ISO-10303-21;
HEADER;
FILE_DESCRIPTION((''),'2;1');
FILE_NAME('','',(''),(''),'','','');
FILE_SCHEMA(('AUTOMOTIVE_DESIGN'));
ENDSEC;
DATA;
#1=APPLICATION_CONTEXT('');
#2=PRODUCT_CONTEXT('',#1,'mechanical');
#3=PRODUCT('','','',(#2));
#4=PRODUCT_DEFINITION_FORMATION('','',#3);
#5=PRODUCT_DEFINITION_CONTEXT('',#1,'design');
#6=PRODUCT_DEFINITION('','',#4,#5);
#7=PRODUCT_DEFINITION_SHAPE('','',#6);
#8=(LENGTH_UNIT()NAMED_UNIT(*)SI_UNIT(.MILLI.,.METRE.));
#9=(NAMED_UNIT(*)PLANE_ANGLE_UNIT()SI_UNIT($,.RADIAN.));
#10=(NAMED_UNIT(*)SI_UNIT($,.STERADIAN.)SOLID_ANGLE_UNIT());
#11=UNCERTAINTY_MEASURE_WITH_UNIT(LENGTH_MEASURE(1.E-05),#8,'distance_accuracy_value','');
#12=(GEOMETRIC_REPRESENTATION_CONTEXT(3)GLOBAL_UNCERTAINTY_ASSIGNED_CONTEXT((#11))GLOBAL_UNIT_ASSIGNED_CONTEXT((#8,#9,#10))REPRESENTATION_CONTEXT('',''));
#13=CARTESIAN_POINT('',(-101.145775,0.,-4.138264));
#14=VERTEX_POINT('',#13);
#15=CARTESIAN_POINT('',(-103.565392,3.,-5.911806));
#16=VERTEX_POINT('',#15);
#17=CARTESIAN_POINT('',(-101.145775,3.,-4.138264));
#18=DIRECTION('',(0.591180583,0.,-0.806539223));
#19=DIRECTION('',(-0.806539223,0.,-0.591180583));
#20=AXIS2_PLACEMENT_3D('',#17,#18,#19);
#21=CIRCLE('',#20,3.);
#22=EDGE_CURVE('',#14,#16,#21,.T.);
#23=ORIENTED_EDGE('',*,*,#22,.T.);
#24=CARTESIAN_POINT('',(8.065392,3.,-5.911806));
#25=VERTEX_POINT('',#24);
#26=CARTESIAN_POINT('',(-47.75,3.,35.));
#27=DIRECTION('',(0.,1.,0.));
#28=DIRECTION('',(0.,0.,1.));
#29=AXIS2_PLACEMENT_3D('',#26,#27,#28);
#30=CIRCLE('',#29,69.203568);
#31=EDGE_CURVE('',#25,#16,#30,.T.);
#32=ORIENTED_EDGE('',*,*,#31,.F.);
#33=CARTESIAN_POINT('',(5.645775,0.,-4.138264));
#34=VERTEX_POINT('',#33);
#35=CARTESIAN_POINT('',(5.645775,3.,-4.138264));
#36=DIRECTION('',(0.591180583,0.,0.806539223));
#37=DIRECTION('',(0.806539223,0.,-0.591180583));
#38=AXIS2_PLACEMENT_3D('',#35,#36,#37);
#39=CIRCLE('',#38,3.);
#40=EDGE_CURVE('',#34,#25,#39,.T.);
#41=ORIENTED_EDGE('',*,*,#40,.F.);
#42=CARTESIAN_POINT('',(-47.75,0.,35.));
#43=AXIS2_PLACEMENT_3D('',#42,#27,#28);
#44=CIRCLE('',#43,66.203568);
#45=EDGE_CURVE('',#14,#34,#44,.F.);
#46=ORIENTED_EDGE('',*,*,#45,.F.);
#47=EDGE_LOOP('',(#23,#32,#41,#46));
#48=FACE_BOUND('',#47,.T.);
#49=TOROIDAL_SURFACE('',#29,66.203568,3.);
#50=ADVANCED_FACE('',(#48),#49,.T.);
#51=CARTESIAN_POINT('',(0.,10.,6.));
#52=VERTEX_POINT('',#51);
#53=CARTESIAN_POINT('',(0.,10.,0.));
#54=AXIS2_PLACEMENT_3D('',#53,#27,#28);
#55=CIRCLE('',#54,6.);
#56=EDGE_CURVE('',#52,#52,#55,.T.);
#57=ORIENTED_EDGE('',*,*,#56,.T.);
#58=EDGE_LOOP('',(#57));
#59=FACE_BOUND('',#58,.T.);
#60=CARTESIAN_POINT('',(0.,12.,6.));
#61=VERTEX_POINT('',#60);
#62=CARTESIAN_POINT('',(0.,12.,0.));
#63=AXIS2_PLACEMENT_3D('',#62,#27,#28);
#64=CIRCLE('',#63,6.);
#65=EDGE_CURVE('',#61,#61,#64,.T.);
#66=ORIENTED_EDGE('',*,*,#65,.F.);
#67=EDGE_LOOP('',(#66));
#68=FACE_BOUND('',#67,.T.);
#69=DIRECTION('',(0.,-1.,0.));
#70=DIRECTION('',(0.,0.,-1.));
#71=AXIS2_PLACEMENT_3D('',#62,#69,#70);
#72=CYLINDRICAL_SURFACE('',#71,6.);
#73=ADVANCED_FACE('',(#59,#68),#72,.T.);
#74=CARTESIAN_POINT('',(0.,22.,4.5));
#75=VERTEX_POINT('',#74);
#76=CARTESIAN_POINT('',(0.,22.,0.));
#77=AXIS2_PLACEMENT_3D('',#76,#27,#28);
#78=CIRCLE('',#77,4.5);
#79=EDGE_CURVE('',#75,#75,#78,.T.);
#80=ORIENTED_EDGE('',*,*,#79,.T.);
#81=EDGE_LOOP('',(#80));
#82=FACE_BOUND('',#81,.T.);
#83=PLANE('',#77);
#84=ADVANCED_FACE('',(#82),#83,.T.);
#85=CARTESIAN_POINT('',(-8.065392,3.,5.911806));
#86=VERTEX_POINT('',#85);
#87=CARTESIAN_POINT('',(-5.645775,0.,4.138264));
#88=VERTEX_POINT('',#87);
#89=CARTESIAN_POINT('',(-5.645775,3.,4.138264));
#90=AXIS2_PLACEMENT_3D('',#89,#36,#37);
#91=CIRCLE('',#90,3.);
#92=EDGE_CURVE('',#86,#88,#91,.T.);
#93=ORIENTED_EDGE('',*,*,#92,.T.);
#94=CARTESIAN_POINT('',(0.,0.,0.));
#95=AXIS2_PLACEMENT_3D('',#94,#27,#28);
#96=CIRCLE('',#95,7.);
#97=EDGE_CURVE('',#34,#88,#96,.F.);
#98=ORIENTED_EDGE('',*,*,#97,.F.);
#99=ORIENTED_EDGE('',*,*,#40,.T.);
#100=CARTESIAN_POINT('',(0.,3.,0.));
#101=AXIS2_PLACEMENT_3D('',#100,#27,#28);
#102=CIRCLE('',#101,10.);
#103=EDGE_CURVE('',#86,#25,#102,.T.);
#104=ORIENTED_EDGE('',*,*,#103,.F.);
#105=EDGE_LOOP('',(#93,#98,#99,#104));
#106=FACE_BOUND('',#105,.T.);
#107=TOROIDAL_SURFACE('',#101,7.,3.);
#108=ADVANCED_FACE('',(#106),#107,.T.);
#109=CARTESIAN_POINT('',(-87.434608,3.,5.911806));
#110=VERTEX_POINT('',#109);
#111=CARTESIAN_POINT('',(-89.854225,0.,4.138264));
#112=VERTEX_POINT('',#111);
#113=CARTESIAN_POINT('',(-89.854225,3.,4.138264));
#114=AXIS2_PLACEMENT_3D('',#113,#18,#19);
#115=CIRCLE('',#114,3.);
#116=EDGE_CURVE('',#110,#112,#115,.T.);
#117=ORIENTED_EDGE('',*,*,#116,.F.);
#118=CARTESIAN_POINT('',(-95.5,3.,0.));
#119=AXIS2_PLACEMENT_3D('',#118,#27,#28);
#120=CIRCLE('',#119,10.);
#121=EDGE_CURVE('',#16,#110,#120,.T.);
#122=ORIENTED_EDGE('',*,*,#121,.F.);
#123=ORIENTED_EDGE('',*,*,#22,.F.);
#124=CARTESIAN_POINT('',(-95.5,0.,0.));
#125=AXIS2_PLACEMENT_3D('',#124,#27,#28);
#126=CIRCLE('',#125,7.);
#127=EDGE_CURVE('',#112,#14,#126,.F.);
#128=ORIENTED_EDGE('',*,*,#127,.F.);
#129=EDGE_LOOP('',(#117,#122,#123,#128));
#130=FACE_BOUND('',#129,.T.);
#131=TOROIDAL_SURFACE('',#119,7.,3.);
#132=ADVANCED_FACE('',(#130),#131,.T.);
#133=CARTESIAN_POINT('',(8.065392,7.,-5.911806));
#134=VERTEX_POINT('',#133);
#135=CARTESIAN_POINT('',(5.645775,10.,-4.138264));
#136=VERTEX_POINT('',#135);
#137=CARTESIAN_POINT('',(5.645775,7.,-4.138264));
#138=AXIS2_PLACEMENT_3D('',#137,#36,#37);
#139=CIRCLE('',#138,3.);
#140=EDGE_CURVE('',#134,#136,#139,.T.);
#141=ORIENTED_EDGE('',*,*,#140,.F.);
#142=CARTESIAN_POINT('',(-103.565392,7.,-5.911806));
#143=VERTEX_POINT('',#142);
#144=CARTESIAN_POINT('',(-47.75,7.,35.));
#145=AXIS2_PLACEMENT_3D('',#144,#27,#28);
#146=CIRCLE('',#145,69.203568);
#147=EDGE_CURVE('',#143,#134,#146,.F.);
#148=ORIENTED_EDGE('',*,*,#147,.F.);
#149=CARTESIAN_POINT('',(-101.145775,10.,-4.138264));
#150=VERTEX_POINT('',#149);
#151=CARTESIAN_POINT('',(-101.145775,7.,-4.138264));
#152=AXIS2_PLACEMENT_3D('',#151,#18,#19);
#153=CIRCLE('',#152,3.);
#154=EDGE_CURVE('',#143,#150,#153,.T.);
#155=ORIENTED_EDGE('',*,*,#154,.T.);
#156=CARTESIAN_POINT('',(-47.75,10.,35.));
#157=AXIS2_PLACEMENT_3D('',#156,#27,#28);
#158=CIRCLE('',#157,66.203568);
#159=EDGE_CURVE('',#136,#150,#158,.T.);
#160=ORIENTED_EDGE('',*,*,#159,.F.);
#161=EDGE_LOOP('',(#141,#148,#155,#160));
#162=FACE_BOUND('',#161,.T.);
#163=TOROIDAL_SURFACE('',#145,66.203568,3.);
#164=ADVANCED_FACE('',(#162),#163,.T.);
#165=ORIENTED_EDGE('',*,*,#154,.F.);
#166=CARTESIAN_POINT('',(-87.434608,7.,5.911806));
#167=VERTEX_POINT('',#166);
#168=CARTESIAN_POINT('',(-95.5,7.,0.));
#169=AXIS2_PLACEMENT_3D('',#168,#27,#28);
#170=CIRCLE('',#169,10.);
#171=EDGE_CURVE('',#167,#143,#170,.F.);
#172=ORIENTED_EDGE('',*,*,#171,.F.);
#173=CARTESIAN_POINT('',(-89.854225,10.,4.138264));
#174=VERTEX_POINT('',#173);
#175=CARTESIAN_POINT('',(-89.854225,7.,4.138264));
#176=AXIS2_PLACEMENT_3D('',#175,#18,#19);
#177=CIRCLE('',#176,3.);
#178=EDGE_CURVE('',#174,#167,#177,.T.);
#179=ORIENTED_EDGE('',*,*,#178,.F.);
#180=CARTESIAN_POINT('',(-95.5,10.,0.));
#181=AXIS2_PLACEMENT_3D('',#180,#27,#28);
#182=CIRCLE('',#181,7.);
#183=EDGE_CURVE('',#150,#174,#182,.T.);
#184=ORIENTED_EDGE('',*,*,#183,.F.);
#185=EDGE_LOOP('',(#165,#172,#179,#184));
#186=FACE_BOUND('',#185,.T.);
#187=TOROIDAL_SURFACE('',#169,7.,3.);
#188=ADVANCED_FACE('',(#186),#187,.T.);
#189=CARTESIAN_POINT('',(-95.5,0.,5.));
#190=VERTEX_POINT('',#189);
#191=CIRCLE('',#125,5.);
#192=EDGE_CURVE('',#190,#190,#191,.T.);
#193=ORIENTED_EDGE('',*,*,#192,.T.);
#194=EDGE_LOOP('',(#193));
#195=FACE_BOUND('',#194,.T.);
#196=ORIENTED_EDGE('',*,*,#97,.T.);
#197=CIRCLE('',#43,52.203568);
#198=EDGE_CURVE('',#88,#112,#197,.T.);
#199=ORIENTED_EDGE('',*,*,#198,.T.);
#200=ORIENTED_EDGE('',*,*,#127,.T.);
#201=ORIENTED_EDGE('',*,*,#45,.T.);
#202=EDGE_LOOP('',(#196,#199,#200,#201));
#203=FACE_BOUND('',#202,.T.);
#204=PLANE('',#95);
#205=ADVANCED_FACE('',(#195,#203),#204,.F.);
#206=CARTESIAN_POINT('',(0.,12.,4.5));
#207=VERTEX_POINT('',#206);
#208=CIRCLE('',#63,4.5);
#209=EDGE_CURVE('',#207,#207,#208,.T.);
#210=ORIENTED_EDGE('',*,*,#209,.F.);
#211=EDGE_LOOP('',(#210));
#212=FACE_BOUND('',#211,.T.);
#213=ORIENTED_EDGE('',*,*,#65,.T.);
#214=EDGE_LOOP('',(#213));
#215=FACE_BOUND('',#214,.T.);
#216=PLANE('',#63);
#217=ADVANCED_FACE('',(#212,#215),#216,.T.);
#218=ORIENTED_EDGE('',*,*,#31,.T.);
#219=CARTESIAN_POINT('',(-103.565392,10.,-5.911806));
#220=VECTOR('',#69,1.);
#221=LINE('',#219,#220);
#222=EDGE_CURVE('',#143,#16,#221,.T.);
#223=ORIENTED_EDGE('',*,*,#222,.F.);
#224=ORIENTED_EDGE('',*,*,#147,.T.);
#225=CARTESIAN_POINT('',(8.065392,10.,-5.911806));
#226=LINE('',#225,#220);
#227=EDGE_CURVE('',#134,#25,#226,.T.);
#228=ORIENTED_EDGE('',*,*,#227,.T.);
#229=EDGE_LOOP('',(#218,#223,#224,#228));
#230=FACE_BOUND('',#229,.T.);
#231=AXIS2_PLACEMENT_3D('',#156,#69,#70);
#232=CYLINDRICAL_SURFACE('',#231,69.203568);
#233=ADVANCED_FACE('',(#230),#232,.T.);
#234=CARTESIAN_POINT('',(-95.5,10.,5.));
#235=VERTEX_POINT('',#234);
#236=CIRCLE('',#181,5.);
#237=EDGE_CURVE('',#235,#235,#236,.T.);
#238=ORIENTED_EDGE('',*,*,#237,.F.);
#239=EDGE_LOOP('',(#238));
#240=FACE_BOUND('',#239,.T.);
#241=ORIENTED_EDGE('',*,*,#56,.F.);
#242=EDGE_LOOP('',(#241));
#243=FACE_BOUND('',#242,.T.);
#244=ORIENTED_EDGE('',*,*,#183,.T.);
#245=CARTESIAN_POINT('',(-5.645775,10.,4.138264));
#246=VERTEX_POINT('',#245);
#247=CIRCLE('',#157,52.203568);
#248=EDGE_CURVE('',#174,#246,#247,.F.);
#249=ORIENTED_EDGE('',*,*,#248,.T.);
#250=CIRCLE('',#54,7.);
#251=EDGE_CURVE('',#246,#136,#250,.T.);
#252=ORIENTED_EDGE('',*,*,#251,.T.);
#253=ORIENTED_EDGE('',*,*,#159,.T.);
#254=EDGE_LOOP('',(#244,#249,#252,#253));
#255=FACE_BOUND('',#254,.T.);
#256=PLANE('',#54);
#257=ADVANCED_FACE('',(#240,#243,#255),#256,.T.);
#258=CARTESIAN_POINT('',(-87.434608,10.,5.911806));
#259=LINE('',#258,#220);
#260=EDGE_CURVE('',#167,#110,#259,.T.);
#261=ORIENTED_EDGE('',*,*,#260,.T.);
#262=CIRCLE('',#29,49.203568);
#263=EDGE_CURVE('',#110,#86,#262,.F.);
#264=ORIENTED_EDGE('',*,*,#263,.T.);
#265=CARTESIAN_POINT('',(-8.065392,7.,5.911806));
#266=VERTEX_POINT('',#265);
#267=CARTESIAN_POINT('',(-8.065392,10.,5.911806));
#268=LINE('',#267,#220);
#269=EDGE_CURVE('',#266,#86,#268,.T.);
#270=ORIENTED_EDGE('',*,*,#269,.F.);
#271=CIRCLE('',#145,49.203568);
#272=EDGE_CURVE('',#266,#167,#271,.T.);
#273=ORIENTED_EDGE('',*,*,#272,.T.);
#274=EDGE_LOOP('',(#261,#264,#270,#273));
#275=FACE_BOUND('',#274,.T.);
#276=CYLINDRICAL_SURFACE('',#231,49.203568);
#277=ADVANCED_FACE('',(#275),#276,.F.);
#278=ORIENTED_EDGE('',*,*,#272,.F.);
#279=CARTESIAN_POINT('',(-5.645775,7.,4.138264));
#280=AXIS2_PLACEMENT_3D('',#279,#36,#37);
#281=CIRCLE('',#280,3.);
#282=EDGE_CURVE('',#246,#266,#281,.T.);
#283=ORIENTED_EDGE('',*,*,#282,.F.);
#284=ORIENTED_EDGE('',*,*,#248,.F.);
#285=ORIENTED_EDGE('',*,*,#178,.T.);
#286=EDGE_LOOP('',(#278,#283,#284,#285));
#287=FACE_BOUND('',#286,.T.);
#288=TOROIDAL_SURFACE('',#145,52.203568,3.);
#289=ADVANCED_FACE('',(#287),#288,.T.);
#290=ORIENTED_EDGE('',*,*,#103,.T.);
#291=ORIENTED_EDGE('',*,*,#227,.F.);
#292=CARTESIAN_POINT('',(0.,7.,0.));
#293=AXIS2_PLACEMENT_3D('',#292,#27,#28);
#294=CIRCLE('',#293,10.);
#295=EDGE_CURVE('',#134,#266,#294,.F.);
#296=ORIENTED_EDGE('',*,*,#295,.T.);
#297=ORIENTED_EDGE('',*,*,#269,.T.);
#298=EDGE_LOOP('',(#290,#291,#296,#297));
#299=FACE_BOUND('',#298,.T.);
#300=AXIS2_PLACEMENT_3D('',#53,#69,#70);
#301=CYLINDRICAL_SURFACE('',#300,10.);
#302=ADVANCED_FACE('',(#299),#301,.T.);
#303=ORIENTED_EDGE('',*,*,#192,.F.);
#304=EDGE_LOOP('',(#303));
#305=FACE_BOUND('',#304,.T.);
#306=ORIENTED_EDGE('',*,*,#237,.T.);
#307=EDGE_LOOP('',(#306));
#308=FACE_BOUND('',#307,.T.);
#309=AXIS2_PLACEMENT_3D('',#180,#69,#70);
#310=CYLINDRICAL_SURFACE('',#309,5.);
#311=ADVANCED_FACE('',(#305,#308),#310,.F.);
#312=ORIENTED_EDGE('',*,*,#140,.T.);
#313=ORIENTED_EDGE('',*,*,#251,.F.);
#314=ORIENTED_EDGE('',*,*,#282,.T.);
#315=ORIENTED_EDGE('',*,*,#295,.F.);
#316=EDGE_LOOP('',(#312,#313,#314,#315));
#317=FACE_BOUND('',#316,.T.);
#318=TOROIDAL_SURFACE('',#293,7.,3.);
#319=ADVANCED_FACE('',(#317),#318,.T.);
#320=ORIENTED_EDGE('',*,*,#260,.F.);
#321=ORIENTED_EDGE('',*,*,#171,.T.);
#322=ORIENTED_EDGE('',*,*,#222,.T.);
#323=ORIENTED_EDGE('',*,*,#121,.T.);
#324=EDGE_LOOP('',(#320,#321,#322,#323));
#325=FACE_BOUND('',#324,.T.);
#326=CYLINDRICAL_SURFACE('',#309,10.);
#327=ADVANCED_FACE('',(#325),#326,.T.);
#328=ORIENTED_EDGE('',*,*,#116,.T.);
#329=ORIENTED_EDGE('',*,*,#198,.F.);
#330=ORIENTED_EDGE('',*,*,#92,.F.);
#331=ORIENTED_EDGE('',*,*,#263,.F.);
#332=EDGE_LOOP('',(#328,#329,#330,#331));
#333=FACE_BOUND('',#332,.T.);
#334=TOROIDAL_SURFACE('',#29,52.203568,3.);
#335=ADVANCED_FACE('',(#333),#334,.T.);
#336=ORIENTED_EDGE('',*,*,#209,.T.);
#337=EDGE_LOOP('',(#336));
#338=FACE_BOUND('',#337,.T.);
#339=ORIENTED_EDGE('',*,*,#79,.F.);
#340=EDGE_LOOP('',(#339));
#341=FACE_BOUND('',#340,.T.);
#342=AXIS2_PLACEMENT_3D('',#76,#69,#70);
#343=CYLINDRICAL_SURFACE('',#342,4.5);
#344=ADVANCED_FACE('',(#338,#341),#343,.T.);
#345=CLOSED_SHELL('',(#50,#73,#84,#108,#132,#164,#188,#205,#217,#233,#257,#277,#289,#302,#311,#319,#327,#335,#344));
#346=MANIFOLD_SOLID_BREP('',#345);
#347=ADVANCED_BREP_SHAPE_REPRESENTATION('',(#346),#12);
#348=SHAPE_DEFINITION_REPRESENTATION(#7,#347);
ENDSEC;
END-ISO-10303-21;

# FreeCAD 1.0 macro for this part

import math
import FreeCAD as App
import Part
import Sketcher

V = App.Vector


def edges_at(feature, points):
    """Names of the edges that pass closest to the given points."""
    edges = feature.Shape.Edges
    near = lambda p: min(range(len(edges)), key=lambda i: edges[i].distToShape(Part.Vertex(*p))[0])
    return sorted({f"Edge{near(p) + 1}" for p in points})

doc = App.newDocument("Part")
body = doc.addObject("PartDesign::Body", "Body")

# Sketch on XZ plane
sketch1 = body.newObject("Sketcher::SketchObject", "Sketch")
sketch1.AttachmentSupport = (doc.getObject("XZ_Plane"), [""])
sketch1.MapMode = "FlatFace"
sketch1.addGeometry([
    Part.ArcOfCircle(Part.Circle(V(0, 0, 0), V(0, 0, 1), 10), math.radians(-36), math.radians(144)),  # 0
    Part.ArcOfCircle(Part.Circle(V(-48, 35, 0), V(0, 0, 1), 69), math.radians(-144), math.radians(-36)),  # 1
    Part.ArcOfCircle(Part.Circle(V(-96, 0, 0), V(0, 0, 1), 10), math.radians(36), math.radians(216)),  # 2
    Part.ArcOfCircle(Part.Circle(V(-48, 35, 0), V(0, 0, 1), 49), math.radians(-144), math.radians(-36)),  # 3
    Part.Circle(V(-96, 0, 0), V(0, 0, 1), 5),  # 4
    Part.Circle(V(0, 0, 0), V(0, 0, 1), 5),  # 5
], False)
sketch1.addConstraint([
    Sketcher.Constraint("Tangent", 0, 1, 1, 2),
    Sketcher.Constraint("Tangent", 1, 1, 2, 2),
    Sketcher.Constraint("Tangent", 2, 1, 3, 1),
    Sketcher.Constraint("Tangent", 3, 2, 0, 2),
    Sketcher.Constraint("Coincident", 0, 3, -1, 1),
    Sketcher.Constraint("Coincident", 5, 3, -1, 1),
    Sketcher.Constraint("Coincident", 3, 3, 1, 3),
    Sketcher.Constraint("Coincident", 4, 3, 2, 3),
    Sketcher.Constraint("Equal", 4, 5),
    Sketcher.Constraint("PointOnObject", 2, 3, -1),
    Sketcher.Constraint("Diameter", 4, 10.0),
    Sketcher.Constraint("Radius", 0, 10.0),
    Sketcher.Constraint("DistanceY", -1, 1, 1, 3, 35.0),
    Sketcher.Constraint("DistanceX", 2, 3, -1, 1, 95.5),
])
pad1 = body.newObject("PartDesign::Pad", "Pad")
pad1.Profile = sketch1
pad1.Length = 10
pad1.Reversed = True
doc.recompute()

fillet = body.newObject("PartDesign::Fillet", "Fillet")
fillet.Base = (pad1, edges_at(pad1, [
    (5.912, 10, 8.065),
    (-47.75, 10, -34.204),
    (-101.412, 10, 8.065),
    (-47.75, 10, -14.204),
    (-47.75, 0, -14.204),
    (-101.412, 0, 8.065),
    (-47.75, 0, -34.204),
    (5.912, 0, 8.065),
]))
fillet.Radius = 3

# Sketch on XZ plane
sketch2 = body.newObject("Sketcher::SketchObject", "Sketch001")
sketch2.AttachmentSupport = (doc.getObject("XZ_Plane"), [""])
sketch2.MapMode = "FlatFace"
sketch2.AttachmentOffset = App.Placement(V(0, 0, -10), App.Rotation())
sketch2.addGeometry(Part.Circle(V(0, 0, 0), V(0, 0, 1), 5), False)
sketch2.addConstraint([
    Sketcher.Constraint("Coincident", 0, 3, -1, 1),
    Sketcher.Constraint("Diameter", 0, 10.0),
])
pad2 = body.newObject("PartDesign::Pad", "Pad001")
pad2.Profile = sketch2
pad2.Length = 10

# Sketch on XZ plane
sketch3 = body.newObject("Sketcher::SketchObject", "Sketch002")
sketch3.AttachmentSupport = (doc.getObject("XZ_Plane"), [""])
sketch3.MapMode = "FlatFace"
sketch3.AttachmentOffset = App.Placement(V(0, 0, -10), App.Rotation())
sketch3.addGeometry([
    Part.Circle(V(0, 0, 0), V(0, 0, 1), 6),
    Part.Circle(V(0, 0, 0), V(0, 0, 1), 4.5),
], False)
sketch3.addConstraint([
    Sketcher.Constraint("Coincident", 0, 3, -1, 1),
    Sketcher.Constraint("Coincident", 1, 3, -1, 1),
    Sketcher.Constraint("Diameter", 0, 12.0),
    Sketcher.Constraint("Diameter", 1, 9.0),
])
pad3 = body.newObject("PartDesign::Pad", "Pad002")
pad3.Profile = sketch3
pad3.Length = 2
pad3.Reversed = True

# Sketch on XZ plane
sketch4 = body.newObject("Sketcher::SketchObject", "Sketch003")
sketch4.AttachmentSupport = (doc.getObject("XZ_Plane"), [""])
sketch4.MapMode = "FlatFace"
sketch4.AttachmentOffset = App.Placement(V(0, 0, -10), App.Rotation())
sketch4.addGeometry(Part.Circle(V(0, 0, 0), V(0, 0, 1), 4.5), False)
sketch4.addConstraint([
    Sketcher.Constraint("Coincident", 0, 3, -1, 1),
    Sketcher.Constraint("Diameter", 0, 9.0),
])
pad4 = body.newObject("PartDesign::Pad", "Pad003")
pad4.Profile = sketch4
pad4.Length = 12
pad4.Reversed = True

doc.recompute()
